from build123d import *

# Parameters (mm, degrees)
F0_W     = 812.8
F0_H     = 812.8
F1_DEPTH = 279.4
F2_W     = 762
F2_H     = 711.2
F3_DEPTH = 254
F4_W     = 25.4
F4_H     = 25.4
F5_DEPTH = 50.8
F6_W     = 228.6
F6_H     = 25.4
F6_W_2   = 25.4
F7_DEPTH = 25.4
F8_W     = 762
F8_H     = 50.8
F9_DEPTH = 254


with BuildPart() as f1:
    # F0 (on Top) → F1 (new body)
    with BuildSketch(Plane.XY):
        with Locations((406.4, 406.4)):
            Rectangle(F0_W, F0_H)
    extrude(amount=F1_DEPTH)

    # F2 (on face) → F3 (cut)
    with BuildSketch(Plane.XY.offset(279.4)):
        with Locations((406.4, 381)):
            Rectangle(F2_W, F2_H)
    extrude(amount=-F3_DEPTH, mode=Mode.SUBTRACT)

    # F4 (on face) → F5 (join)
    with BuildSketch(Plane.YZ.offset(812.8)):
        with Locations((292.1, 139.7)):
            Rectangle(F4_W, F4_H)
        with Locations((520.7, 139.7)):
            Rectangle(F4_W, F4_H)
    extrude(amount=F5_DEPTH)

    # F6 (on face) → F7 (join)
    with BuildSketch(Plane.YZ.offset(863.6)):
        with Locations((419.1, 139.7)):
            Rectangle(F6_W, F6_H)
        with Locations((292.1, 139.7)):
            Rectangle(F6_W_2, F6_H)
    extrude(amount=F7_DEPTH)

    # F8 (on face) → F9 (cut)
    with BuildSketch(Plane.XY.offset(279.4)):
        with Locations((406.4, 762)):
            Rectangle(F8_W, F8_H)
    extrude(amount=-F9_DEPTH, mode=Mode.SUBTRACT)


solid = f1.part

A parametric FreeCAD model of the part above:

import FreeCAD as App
import Part
import Sketcher

V = App.Vector
Q = App.Units.Quantity

doc = App.newDocument("Part")
params = doc.addObject("Spreadsheet::Sheet", "Params")
for row, (alias, value) in enumerate([
    ("sketch1_width", "32 in"),
    ("pad1_length", "11 in"),
    ("sketch2_width", "30 in"),
    ("sketch2_height", "28 in"),
    ("pocket1_length", "10 in"),
    ("sketch3_width", "1 in"),
    ("pad2_length", "2 in"),
    ("sketch4_width", "10 in"),
    ("sketch4_height", "1 in"),
    ("pad3_length", "1 in"),
    ("sketch5_width", "30 in"),
    ("sketch5_height", "2 in"),
    ("pocket2_length", "10 in"),
], start=1):
    params.set(f"A{row}", alias)
    params.set(f"B{row}", "=" + value)
    params.setAlias(f"B{row}", alias)

body = doc.addObject("PartDesign::Body", "Body")

sketch1 = body.newObject("Sketcher::SketchObject", "Sketch")
sketch1.AttachmentSupport = (doc.getObject("XY_Plane"), [""])
sketch1.MapMode = "FlatFace"
sketch1.addGeometry(Part.LineSegment(V(0, 812.8, 0), V(0, 0, 0)), False)
sketch1.addGeometry(Part.LineSegment(V(0, 0, 0), V(812.8, 0, 0)), False)
sketch1.addGeometry(Part.LineSegment(V(812.8, 0, 0), V(812.8, 812.8, 0)), False)
sketch1.addGeometry(Part.LineSegment(V(812.8, 812.8, 0), V(0, 812.8, 0)), False)
sketch1.addConstraint(Sketcher.Constraint("Coincident", 0, 2, 1, 1))
sketch1.addConstraint(Sketcher.Constraint("Coincident", 1, 2, 2, 1))
sketch1.addConstraint(Sketcher.Constraint("Coincident", 2, 2, 3, 1))
sketch1.addConstraint(Sketcher.Constraint("Coincident", 3, 2, 0, 1))
sketch1.addConstraint(Sketcher.Constraint("Vertical", 0))
sketch1.addConstraint(Sketcher.Constraint("Horizontal", 1))
sketch1.addConstraint(Sketcher.Constraint("Vertical", 2))
sketch1.addConstraint(Sketcher.Constraint("Horizontal", 3))
sketch1.addConstraint(Sketcher.Constraint("Coincident", 0, 2, -1, 1))
sketch1.addConstraint(Sketcher.Constraint("Equal", 3, 0))
sketch1.addConstraint(Sketcher.Constraint("DistanceX", 1, 1, 1, 2, Q("32 in")))
sketch1.setExpression("Constraints[10]", "Params.sketch1_width")
pad1 = body.newObject("PartDesign::Pad", "Pad")
pad1.Profile = sketch1
pad1.setExpression("Length", "Params.pad1_length")

sketch2 = body.newObject("Sketcher::SketchObject", "Sketch001")
sketch2.AttachmentSupport = (doc.getObject("XY_Plane"), [""])
sketch2.MapMode = "FlatFace"
sketch2.AttachmentOffset = App.Placement(V(0, 0, 11 * 25.4), App.Rotation())
sketch2.addGeometry(Part.LineSegment(V(25.4, 736.6, 0), V(25.4, 25.4, 0)), False)
sketch2.addGeometry(Part.LineSegment(V(25.4, 25.4, 0), V(787.4, 25.4, 0)), False)
sketch2.addGeometry(Part.LineSegment(V(787.4, 25.4, 0), V(787.4, 736.6, 0)), False)
sketch2.addGeometry(Part.LineSegment(V(787.4, 736.6, 0), V(25.4, 736.6, 0)), False)
sketch2.addConstraint(Sketcher.Constraint("Coincident", 0, 2, 1, 1))
sketch2.addConstraint(Sketcher.Constraint("Coincident", 1, 2, 2, 1))
sketch2.addConstraint(Sketcher.Constraint("Coincident", 2, 2, 3, 1))
sketch2.addConstraint(Sketcher.Constraint("Coincident", 3, 2, 0, 1))
sketch2.addConstraint(Sketcher.Constraint("Vertical", 0))
sketch2.addConstraint(Sketcher.Constraint("Horizontal", 1))
sketch2.addConstraint(Sketcher.Constraint("Vertical", 2))
sketch2.addConstraint(Sketcher.Constraint("Horizontal", 3))
sketch2.addConstraint(Sketcher.Constraint("DistanceX", 1, 1, 1, 2, Q("30 in")))
sketch2.addConstraint(Sketcher.Constraint("DistanceY", 0, 2, 0, 1, Q("28 in")))
sketch2.addConstraint(Sketcher.Constraint("DistanceX", -1, 1, 0, 2, Q("1 in")))
sketch2.addConstraint(Sketcher.Constraint("DistanceY", -1, 1, 0, 2, Q("1 in")))
sketch2.setExpression("Constraints[8]", "Params.sketch2_width")
sketch2.setExpression("Constraints[9]", "Params.sketch2_height")
pocket1 = body.newObject("PartDesign::Pocket", "Pocket")
pocket1.Profile = sketch2
pocket1.setExpression("Length", "Params.pocket1_length")

sketch3 = body.newObject("Sketcher::SketchObject", "Sketch002")
sketch3.AttachmentSupport = (doc.getObject("YZ_Plane"), [""])
sketch3.MapMode = "FlatFace"
sketch3.AttachmentOffset = App.Placement(V(0, 0, 32 * 25.4), App.Rotation())
sketch3.addGeometry(Part.LineSegment(V(279.4, 152.4, 0), V(279.4, 127, 0)), False)
sketch3.addGeometry(Part.LineSegment(V(279.4, 127, 0), V(304.8, 127, 0)), False)
sketch3.addGeometry(Part.LineSegment(V(304.8, 127, 0), V(304.8, 152.4, 0)), False)
sketch3.addGeometry(Part.LineSegment(V(304.8, 152.4, 0), V(279.4, 152.4, 0)), False)
sketch3.addGeometry(Part.LineSegment(V(508, 152.4, 0), V(508, 127, 0)), False)
sketch3.addGeometry(Part.LineSegment(V(508, 127, 0), V(533.4, 127, 0)), False)
sketch3.addGeometry(Part.LineSegment(V(533.4, 127, 0), V(533.4, 152.4, 0)), False)
sketch3.addGeometry(Part.LineSegment(V(533.4, 152.4, 0), V(508, 152.4, 0)), False)
sketch3.addConstraint(Sketcher.Constraint("Coincident", 0, 2, 1, 1))
sketch3.addConstraint(Sketcher.Constraint("Coincident", 1, 2, 2, 1))
sketch3.addConstraint(Sketcher.Constraint("Coincident", 2, 2, 3, 1))
sketch3.addConstraint(Sketcher.Constraint("Coincident", 3, 2, 0, 1))
sketch3.addConstraint(Sketcher.Constraint("Coincident", 4, 2, 5, 1))
sketch3.addConstraint(Sketcher.Constraint("Coincident", 5, 2, 6, 1))
sketch3.addConstraint(Sketcher.Constraint("Coincident", 6, 2, 7, 1))
sketch3.addConstraint(Sketcher.Constraint("Coincident", 7, 2, 4, 1))
sketch3.addConstraint(Sketcher.Constraint("Vertical", 0))
sketch3.addConstraint(Sketcher.Constraint("Horizontal", 1))
sketch3.addConstraint(Sketcher.Constraint("Vertical", 2))
sketch3.addConstraint(Sketcher.Constraint("Horizontal", 3))
sketch3.addConstraint(Sketcher.Constraint("Vertical", 4))
sketch3.addConstraint(Sketcher.Constraint("Horizontal", 5))
sketch3.addConstraint(Sketcher.Constraint("Vertical", 6))
sketch3.addConstraint(Sketcher.Constraint("Horizontal", 7))
sketch3.addConstraint(Sketcher.Constraint("Horizontal", 1, 2, 4, 2))
sketch3.addConstraint(Sketcher.Constraint("Horizontal", 3, 2, 6, 2))
sketch3.addConstraint(Sketcher.Constraint("Equal", 3, 5))
sketch3.addConstraint(Sketcher.Constraint("Equal", 7, 0))
sketch3.addConstraint(Sketcher.Constraint("DistanceX", 1, 1, 1, 2, Q("1 in")))
sketch3.addConstraint(Sketcher.Constraint("DistanceX", -1, 1, 0, 2, Q("11 in")))
sketch3.addConstraint(Sketcher.Constraint("DistanceY", -1, 1, 0, 2, Q("5 in")))
sketch3.addConstraint(Sketcher.Constraint("DistanceX", -1, 1, 4, 2, Q("20 in")))
sketch3.setExpression("Constraints[20]", "Params.sketch3_width")
pad2 = body.newObject("PartDesign::Pad", "Pad001")
pad2.Profile = sketch3
pad2.setExpression("Length", "Params.pad2_length")

sketch4 = body.newObject("Sketcher::SketchObject", "Sketch003")
sketch4.AttachmentSupport = (doc.getObject("YZ_Plane"), [""])
sketch4.MapMode = "FlatFace"
sketch4.AttachmentOffset = App.Placement(V(0, 0, 34 * 25.4), App.Rotation())
sketch4.addGeometry(Part.LineSegment(V(533.4, 127, 0), V(533.4, 152.4, 0)), False)
sketch4.addGeometry(Part.LineSegment(V(533.4, 152.4, 0), V(279.4, 152.4, 0)), False)
sketch4.addGeometry(Part.LineSegment(V(279.4, 152.4, 0), V(279.4, 127, 0)), False)
sketch4.addGeometry(Part.LineSegment(V(279.4, 127, 0), V(533.4, 127, 0)), False)
sketch4.addConstraint(Sketcher.Constraint("Coincident", 0, 2, 1, 1))
sketch4.addConstraint(Sketcher.Constraint("Coincident", 1, 2, 2, 1))
sketch4.addConstraint(Sketcher.Constraint("Coincident", 2, 2, 3, 1))
sketch4.addConstraint(Sketcher.Constraint("Coincident", 3, 2, 0, 1))
sketch4.addConstraint(Sketcher.Constraint("Vertical", 0))
sketch4.addConstraint(Sketcher.Constraint("Horizontal", 1))
sketch4.addConstraint(Sketcher.Constraint("Vertical", 2))
sketch4.addConstraint(Sketcher.Constraint("Horizontal", 3))
sketch4.addConstraint(Sketcher.Constraint("DistanceX", 1, 2, 1, 1, Q("10 in")))
sketch4.addConstraint(Sketcher.Constraint("DistanceY", 0, 1, 0, 2, Q("1 in")))
sketch4.addConstraint(Sketcher.Constraint("DistanceX", -1, 1, 0, 2, Q("21 in")))
sketch4.addConstraint(Sketcher.Constraint("DistanceY", -1, 1, 0, 2, Q("6 in")))
sketch4.setExpression("Constraints[8]", "Params.sketch4_width")
sketch4.setExpression("Constraints[9]", "Params.sketch4_height")
pad3 = body.newObject("PartDesign::Pad", "Pad002")
pad3.Profile = sketch4
pad3.setExpression("Length", "Params.pad3_length")

sketch5 = body.newObject("Sketcher::SketchObject", "Sketch004")
sketch5.AttachmentSupport = (doc.getObject("XY_Plane"), [""])
sketch5.MapMode = "FlatFace"
sketch5.AttachmentOffset = App.Placement(V(0, 0, 11 * 25.4), App.Rotation())
sketch5.addGeometry(Part.LineSegment(V(25.4, 787.4, 0), V(25.4, 736.6, 0)), False)
sketch5.addGeometry(Part.LineSegment(V(25.4, 736.6, 0), V(787.4, 736.6, 0)), False)
sketch5.addGeometry(Part.LineSegment(V(787.4, 736.6, 0), V(787.4, 787.4, 0)), False)
sketch5.addGeometry(Part.LineSegment(V(787.4, 787.4, 0), V(25.4, 787.4, 0)), False)
sketch5.addConstraint(Sketcher.Constraint("Coincident", 0, 2, 1, 1))
sketch5.addConstraint(Sketcher.Constraint("Coincident", 1, 2, 2, 1))
sketch5.addConstraint(Sketcher.Constraint("Coincident", 2, 2, 3, 1))
sketch5.addConstraint(Sketcher.Constraint("Coincident", 3, 2, 0, 1))
sketch5.addConstraint(Sketcher.Constraint("Vertical", 0))
sketch5.addConstraint(Sketcher.Constraint("Horizontal", 1))
sketch5.addConstraint(Sketcher.Constraint("Vertical", 2))
sketch5.addConstraint(Sketcher.Constraint("Horizontal", 3))
sketch5.addConstraint(Sketcher.Constraint("DistanceX", 1, 1, 1, 2, Q("30 in")))
sketch5.addConstraint(Sketcher.Constraint("DistanceY", 0, 2, 0, 1, Q("2 in")))
sketch5.addConstraint(Sketcher.Constraint("DistanceX", -1, 1, 0, 2, Q("1 in")))
sketch5.addConstraint(Sketcher.Constraint("DistanceY", -1, 1, 0, 2, Q("29 in")))
sketch5.setExpression("Constraints[8]", "Params.sketch5_width")
sketch5.setExpression("Constraints[9]", "Params.sketch5_height")
pocket2 = body.newObject("PartDesign::Pocket", "Pocket001")
pocket2.Profile = sketch5
pocket2.setExpression("Length", "Params.pocket2_length")

doc.recompute()
